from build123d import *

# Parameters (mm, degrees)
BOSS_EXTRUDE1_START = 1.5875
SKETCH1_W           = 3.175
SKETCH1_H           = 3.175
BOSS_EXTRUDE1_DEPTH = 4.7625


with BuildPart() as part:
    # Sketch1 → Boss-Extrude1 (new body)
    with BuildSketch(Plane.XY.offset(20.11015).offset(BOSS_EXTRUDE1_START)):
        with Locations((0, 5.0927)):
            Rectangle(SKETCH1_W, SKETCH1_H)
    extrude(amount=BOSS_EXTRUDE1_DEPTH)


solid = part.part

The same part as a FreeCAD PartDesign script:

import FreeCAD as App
import Part
import Sketcher

V = App.Vector
Q = App.Units.Quantity


def add_polygon(sketch, points):
    """Adds a closed chain of lines whose ends are joined by coincident constraints."""
    first, n = sketch.GeometryCount, len(points)
    for a, b in zip(points, points[1:] + points[:1]):
        sketch.addGeometry(Part.LineSegment(App.Vector(*a, 0), App.Vector(*b, 0)), False)
    for i in range(n):
        sketch.addConstraint(Sketcher.Constraint("Coincident", first + i, 2, first + (i + 1) % n, 1))

doc = App.newDocument("Part")
body = doc.addObject("PartDesign::Body", "Body")

sketch1 = body.newObject("Sketcher::SketchObject", "Sketch")
sketch1.AttachmentSupport = (doc.getObject("XY_Plane"), [""])
sketch1.MapMode = "FlatFace"
sketch1.AttachmentOffset = App.Placement(V(0, 0, 21.69765), App.Rotation())
add_polygon(sketch1, [(-1.5875, 6.6802), (-1.5875, 3.5052), (1.5875, 3.5052), (1.5875, 6.6802)])
sketch1.addConstraint(Sketcher.Constraint("Vertical", 0))
sketch1.addConstraint(Sketcher.Constraint("Horizontal", 1))
sketch1.addConstraint(Sketcher.Constraint("Vertical", 2))
sketch1.addConstraint(Sketcher.Constraint("Horizontal", 3))
sketch1.addConstraint(Sketcher.Constraint("Equal", 3, 0))
sketch1.addConstraint(Sketcher.Constraint("DistanceX", 1, 1, 1, 2, Q("0.125 in")))
sketch1.addConstraint(Sketcher.Constraint("DistanceX", 0, 2, -1, 1, Q("0.0625 in")))
sketch1.addConstraint(Sketcher.Constraint("DistanceY", -1, 1, 0, 2, Q("0.138 in")))
pad1 = body.newObject("PartDesign::Pad", "Pad")
pad1.Profile = sketch1
pad1.Length = Q("0.1875 in")

doc.recompute()
